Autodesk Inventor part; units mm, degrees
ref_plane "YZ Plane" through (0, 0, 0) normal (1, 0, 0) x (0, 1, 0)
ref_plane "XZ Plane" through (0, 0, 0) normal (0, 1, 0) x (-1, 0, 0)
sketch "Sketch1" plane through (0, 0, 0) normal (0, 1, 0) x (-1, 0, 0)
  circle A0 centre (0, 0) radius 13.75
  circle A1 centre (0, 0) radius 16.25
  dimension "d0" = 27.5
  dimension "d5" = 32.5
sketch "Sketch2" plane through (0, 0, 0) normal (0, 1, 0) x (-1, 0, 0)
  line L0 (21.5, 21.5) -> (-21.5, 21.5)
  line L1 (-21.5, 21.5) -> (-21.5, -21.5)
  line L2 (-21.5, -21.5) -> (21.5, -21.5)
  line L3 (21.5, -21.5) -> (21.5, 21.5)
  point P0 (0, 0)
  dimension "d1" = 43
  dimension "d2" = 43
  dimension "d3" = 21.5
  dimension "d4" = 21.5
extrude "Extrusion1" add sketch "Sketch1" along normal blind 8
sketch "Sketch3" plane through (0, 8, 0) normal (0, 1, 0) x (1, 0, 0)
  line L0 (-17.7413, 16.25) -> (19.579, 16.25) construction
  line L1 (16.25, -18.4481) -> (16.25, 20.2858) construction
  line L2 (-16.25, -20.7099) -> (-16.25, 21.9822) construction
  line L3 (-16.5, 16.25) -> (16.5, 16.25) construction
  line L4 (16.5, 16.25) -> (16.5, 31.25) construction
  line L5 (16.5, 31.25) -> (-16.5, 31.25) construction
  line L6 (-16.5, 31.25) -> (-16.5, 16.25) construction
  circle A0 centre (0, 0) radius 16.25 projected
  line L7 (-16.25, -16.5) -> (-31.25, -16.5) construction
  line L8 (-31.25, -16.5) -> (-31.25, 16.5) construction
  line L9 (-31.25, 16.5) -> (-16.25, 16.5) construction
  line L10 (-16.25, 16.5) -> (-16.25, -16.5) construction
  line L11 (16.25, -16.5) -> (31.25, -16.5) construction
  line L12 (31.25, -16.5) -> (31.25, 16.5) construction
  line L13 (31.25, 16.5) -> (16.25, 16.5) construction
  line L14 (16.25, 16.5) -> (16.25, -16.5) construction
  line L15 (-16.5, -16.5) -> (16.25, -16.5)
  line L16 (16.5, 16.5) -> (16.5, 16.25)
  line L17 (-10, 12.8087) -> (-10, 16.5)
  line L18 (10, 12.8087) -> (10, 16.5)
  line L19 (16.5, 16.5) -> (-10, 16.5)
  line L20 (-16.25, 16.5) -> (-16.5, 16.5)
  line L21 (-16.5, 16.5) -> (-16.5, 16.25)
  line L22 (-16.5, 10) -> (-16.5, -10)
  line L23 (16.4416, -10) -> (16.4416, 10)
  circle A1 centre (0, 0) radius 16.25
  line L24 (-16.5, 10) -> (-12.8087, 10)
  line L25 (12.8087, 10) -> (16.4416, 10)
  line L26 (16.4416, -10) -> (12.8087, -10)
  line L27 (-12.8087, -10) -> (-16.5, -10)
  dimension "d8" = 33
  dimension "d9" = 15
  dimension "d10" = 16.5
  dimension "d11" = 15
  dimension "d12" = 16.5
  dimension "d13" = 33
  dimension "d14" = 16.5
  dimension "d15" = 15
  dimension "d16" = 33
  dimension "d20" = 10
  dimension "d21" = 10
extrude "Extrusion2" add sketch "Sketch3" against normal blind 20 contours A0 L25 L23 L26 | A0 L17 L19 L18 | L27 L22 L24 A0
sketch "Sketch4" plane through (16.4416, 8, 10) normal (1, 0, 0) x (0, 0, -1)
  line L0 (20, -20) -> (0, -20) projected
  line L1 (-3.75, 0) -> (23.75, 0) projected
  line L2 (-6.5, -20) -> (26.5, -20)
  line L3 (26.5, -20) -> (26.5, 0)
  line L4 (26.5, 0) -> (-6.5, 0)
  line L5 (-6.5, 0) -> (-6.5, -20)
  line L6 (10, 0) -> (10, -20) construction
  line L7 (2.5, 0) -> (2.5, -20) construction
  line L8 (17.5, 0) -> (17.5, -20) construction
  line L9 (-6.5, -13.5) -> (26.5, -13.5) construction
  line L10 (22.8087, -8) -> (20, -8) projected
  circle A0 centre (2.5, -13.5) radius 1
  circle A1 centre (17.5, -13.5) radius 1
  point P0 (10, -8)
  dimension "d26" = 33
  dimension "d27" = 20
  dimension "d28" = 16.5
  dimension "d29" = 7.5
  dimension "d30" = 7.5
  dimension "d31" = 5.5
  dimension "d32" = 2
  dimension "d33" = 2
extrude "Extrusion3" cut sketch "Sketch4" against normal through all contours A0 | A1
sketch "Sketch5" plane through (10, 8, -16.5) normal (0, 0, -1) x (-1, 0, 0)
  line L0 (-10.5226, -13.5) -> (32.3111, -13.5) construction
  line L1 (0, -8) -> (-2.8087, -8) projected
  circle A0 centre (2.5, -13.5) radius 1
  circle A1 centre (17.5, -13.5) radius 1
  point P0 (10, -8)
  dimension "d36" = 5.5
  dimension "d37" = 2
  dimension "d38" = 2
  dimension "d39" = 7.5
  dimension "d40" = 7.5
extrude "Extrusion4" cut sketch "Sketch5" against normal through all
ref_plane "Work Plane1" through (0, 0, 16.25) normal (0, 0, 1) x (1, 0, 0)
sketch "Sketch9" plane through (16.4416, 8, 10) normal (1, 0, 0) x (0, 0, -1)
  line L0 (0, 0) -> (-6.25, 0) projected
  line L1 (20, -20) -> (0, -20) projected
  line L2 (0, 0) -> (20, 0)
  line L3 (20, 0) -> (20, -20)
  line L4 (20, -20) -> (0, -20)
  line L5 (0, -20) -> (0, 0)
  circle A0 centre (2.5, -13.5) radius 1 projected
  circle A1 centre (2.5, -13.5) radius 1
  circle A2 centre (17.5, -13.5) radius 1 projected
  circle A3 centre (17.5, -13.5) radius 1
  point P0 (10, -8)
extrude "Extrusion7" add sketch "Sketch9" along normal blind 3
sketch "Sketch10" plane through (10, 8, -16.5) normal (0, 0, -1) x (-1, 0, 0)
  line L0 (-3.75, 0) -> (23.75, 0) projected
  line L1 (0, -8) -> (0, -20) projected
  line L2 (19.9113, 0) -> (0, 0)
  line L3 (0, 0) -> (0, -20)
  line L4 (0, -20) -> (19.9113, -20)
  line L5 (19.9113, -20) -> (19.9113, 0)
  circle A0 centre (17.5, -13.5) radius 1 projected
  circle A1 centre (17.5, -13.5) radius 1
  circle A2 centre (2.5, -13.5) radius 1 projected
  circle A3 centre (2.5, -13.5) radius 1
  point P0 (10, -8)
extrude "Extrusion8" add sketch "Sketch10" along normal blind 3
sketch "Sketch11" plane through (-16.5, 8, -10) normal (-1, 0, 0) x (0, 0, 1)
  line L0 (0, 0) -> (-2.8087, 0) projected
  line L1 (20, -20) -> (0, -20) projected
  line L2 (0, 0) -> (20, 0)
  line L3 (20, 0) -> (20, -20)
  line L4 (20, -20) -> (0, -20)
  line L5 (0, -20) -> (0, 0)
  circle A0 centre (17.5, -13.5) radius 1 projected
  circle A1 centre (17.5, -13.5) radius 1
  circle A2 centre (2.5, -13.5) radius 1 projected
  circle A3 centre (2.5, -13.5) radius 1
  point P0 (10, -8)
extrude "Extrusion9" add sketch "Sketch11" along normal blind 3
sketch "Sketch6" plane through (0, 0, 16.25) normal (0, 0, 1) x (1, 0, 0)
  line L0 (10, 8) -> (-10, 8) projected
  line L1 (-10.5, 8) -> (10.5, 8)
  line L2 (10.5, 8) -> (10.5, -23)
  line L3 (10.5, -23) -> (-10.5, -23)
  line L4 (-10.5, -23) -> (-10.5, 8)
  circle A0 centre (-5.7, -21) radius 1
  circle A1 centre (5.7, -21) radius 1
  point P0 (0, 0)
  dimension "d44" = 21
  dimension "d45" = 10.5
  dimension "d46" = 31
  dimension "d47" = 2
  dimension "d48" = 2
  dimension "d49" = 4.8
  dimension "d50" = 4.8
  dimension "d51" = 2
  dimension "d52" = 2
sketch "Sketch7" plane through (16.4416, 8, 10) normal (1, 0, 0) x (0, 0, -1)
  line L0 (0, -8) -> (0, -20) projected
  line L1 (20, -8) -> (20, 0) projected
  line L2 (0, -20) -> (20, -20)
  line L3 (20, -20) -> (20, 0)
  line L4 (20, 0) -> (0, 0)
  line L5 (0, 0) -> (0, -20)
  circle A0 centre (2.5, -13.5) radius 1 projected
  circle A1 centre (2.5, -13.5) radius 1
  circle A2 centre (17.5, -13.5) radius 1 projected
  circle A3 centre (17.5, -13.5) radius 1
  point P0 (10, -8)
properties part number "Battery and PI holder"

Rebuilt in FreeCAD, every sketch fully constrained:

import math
import FreeCAD as App
import Part
import Sketcher

V = App.Vector


def add_polygon(sketch, points):
    """Adds a closed chain of lines whose ends are joined by coincident constraints."""
    first, n = sketch.GeometryCount, len(points)
    for a, b in zip(points, points[1:] + points[:1]):
        sketch.addGeometry(Part.LineSegment(App.Vector(*a, 0), App.Vector(*b, 0)), False)
    for i in range(n):
        sketch.addConstraint(Sketcher.Constraint("Coincident", first + i, 2, first + (i + 1) % n, 1))

doc = App.newDocument("Part")
body = doc.addObject("PartDesign::Body", "Body")

sketch1 = body.newObject("Sketcher::SketchObject", "Sketch")
sketch1.AttachmentSupport = (doc.getObject("XZ_Plane"), [""])
sketch1.MapMode = "FlatFace"
sketch1.addGeometry(Part.Circle(V(0, 0, 0), V(0, 0, 1), 16), False)
sketch1.addGeometry(Part.Circle(V(0, 0, 0), V(0, 0, 1), 14), False)
sketch1.addConstraint(Sketcher.Constraint("Coincident", 0, 3, -1, 1))
sketch1.addConstraint(Sketcher.Constraint("Coincident", 1, 3, -1, 1))
sketch1.addConstraint(Sketcher.Constraint("Diameter", 0, 32.5))
sketch1.addConstraint(Sketcher.Constraint("Diameter", 1, 27.5))
pad1 = body.newObject("PartDesign::Pad", "Pad")
pad1.Profile = sketch1
pad1.Length = 8
pad1.Reversed = True

sketch2 = body.newObject("Sketcher::SketchObject", "Sketch001")
sketch2.AttachmentSupport = (doc.getObject("XZ_Plane"), [""])
sketch2.MapMode = "FlatFace"
sketch2.AttachmentOffset = App.Placement(V(0, 0, -8), App.Rotation())
sketch2.addGeometry(Part.ArcOfCircle(Part.Circle(V(0, 0, 0), V(0, 0, 1), 16.2), math.radians(-38), math.radians(38)), False)
sketch2.addGeometry(Part.LineSegment(V(12.8, 10, 0), V(16.4, 10, 0)), False)
sketch2.addGeometry(Part.LineSegment(V(16.4, 10, 0), V(16.4, -10, 0)), False)
sketch2.addGeometry(Part.LineSegment(V(16.4, -10, 0), V(12.8, -10, 0)), False)
sketch2.addGeometry(Part.ArcOfCircle(Part.Circle(V(0, 0, 0), V(0, 0, 1), 16.2), math.radians(-128), math.radians(-52)), False)
sketch2.addGeometry(Part.LineSegment(V(10, -12.8, 0), V(10, -16.5, 0)), False)
sketch2.addGeometry(Part.LineSegment(V(10, -16.5, 0), V(-10, -16.5, 0)), False)
sketch2.addGeometry(Part.LineSegment(V(-10, -16.5, 0), V(-10, -12.8, 0)), False)
sketch2.addGeometry(Part.LineSegment(V(-16.5, 10, 0), V(-12.8, 10, 0)), False)
sketch2.addGeometry(Part.ArcOfCircle(Part.Circle(V(0, 0, 0), V(0, 0, 1), 16.2), math.radians(142), math.radians(218)), False)
sketch2.addGeometry(Part.LineSegment(V(-12.8, -10, 0), V(-16.5, -10, 0)), False)
sketch2.addGeometry(Part.LineSegment(V(-16.5, -10, 0), V(-16.5, 10, 0)), False)
sketch2.addConstraint(Sketcher.Constraint("Coincident", 0, 2, 1, 1))
sketch2.addConstraint(Sketcher.Constraint("Coincident", 1, 2, 2, 1))
sketch2.addConstraint(Sketcher.Constraint("Coincident", 2, 2, 3, 1))
sketch2.addConstraint(Sketcher.Constraint("Coincident", 3, 2, 0, 1))
sketch2.addConstraint(Sketcher.Constraint("Coincident", 4, 2, 5, 1))
sketch2.addConstraint(Sketcher.Constraint("Coincident", 5, 2, 6, 1))
sketch2.addConstraint(Sketcher.Constraint("Coincident", 6, 2, 7, 1))
sketch2.addConstraint(Sketcher.Constraint("Coincident", 7, 2, 4, 1))
sketch2.addConstraint(Sketcher.Constraint("Coincident", 8, 2, 9, 1))
sketch2.addConstraint(Sketcher.Constraint("Coincident", 9, 2, 10, 1))
sketch2.addConstraint(Sketcher.Constraint("Coincident", 10, 2, 11, 1))
sketch2.addConstraint(Sketcher.Constraint("Coincident", 11, 2, 8, 1))
sketch2.addConstraint(Sketcher.Constraint("Horizontal", 1))
sketch2.addConstraint(Sketcher.Constraint("Vertical", 2))
sketch2.addConstraint(Sketcher.Constraint("Horizontal", 3))
sketch2.addConstraint(Sketcher.Constraint("Vertical", 5))
sketch2.addConstraint(Sketcher.Constraint("Horizontal", 6))
sketch2.addConstraint(Sketcher.Constraint("Vertical", 7))
sketch2.addConstraint(Sketcher.Constraint("Horizontal", 8))
sketch2.addConstraint(Sketcher.Constraint("Horizontal", 10))
sketch2.addConstraint(Sketcher.Constraint("Vertical", 11))
sketch2.addConstraint(Sketcher.Constraint("Coincident", 0, 3, -1, 1))
sketch2.addConstraint(Sketcher.Constraint("Coincident", 4, 3, -1, 1))
sketch2.addConstraint(Sketcher.Constraint("Coincident", 9, 3, -1, 1))
sketch2.addConstraint(Sketcher.Constraint("Equal", 0, 4))
sketch2.addConstraint(Sketcher.Constraint("Equal", 4, 9))
sketch2.addConstraint(Sketcher.Constraint("Horizontal", 4, 2, 7, 2))
sketch2.addConstraint(Sketcher.Constraint("Horizontal", 1, 2, 8, 2))
sketch2.addConstraint(Sketcher.Constraint("Horizontal", 3, 2, 9, 2))
sketch2.addConstraint(Sketcher.Constraint("Vertical", 0, 2, 3, 2))
sketch2.addConstraint(Sketcher.Constraint("Equal", 6, 2))
sketch2.addConstraint(Sketcher.Constraint("Equal", 10, 5))
sketch2.addConstraint(Sketcher.Constraint("DistanceY", -1, 1, 0, 2, 10.0))
sketch2.addConstraint(Sketcher.Constraint("DistanceY", 5, 2, -1, 1, 16.5))
sketch2.addConstraint(Sketcher.Constraint("Radius", 0, 16.25))
sketch2.addConstraint(Sketcher.Constraint("DistanceX", 1, 1, 1, 2, 3.633))
pad2 = body.newObject("PartDesign::Pad", "Pad001")
pad2.Profile = sketch2
pad2.Length = 20

sketch3 = body.newObject("Sketcher::SketchObject", "Sketch002")
sketch3.AttachmentSupport = (doc.getObject("YZ_Plane"), [""])
sketch3.MapMode = "FlatFace"
sketch3.AttachmentOffset = App.Placement(V(0, 0, 16.4416), App.Rotation())
sketch3.addGeometry(Part.Circle(V(-5.5, 7.5, 0), V(0, 0, 1), 1), False)
sketch3.addGeometry(Part.Circle(V(-5.5, -7.5, 0), V(0, 0, 1), 1), False)
sketch3.addConstraint(Sketcher.Constraint("Equal", 0, 1))
sketch3.addConstraint(Sketcher.Constraint("Symmetric", 0, 3, 1, 3, -1))
sketch3.addConstraint(Sketcher.Constraint("Diameter", 0, 2.0))
sketch3.addConstraint(Sketcher.Constraint("DistanceX", 0, 3, -1, 1, 5.5))
sketch3.addConstraint(Sketcher.Constraint("DistanceY", -1, 1, 0, 3, 7.5))
pocket1 = body.newObject("PartDesign::Pocket", "Pocket")
pocket1.Profile = sketch3
pocket1.Type = "ThroughAll"

sketch4 = body.newObject("Sketcher::SketchObject", "Sketch003")
sketch4.AttachmentSupport = (doc.getObject("XY_Plane"), [""])
sketch4.MapMode = "FlatFace"
sketch4.AttachmentOffset = App.Placement(V(0, 0, -16.5), App.Rotation())
sketch4.addGeometry(Part.Circle(V(7.5, -5.5, 0), V(0, 0, 1), 1), False)
sketch4.addGeometry(Part.Circle(V(-7.5, -5.5, 0), V(0, 0, 1), 1), False)
sketch4.addConstraint(Sketcher.Constraint("Equal", 0, 1))
sketch4.addConstraint(Sketcher.Constraint("Symmetric", 0, 3, 1, 3, -2))
sketch4.addConstraint(Sketcher.Constraint("Diameter", 0, 2.0))
sketch4.addConstraint(Sketcher.Constraint("DistanceX", -1, 1, 0, 3, 7.5))
sketch4.addConstraint(Sketcher.Constraint("DistanceY", 0, 3, -1, 1, 5.5))
pocket2 = body.newObject("PartDesign::Pocket", "Pocket001")
pocket2.Profile = sketch4
pocket2.Type = "ThroughAll"
pocket2.Reversed = True

sketch5 = body.newObject("Sketcher::SketchObject", "Sketch004")
sketch5.AttachmentSupport = (doc.getObject("YZ_Plane"), [""])
sketch5.MapMode = "FlatFace"
sketch5.AttachmentOffset = App.Placement(V(0, 0, 16.4416), App.Rotation())
add_polygon(sketch5, [(-12, 10), (-12, -10), (8, -10), (8, 10)])
sketch5.addGeometry(Part.Circle(V(-5.5, 7.5, 0), V(0, 0, 1), 1), False)
sketch5.addGeometry(Part.Circle(V(-5.5, -7.5, 0), V(0, 0, 1), 1), False)
sketch5.addConstraint(Sketcher.Constraint("Vertical", 0))
sketch5.addConstraint(Sketcher.Constraint("Horizontal", 1))
sketch5.addConstraint(Sketcher.Constraint("Vertical", 2))
sketch5.addConstraint(Sketcher.Constraint("Horizontal", 3))
sketch5.addConstraint(Sketcher.Constraint("Equal", 4, 5))
sketch5.addConstraint(Sketcher.Constraint("Symmetric", 4, 3, 5, 3, -1))
sketch5.addConstraint(Sketcher.Constraint("Equal", 3, 0))
sketch5.addConstraint(Sketcher.Constraint("Diameter", 4, 2.0))
sketch5.addConstraint(Sketcher.Constraint("DistanceX", 1, 1, 1, 2, 20.0))
sketch5.addConstraint(Sketcher.Constraint("DistanceX", 0, 2, -1, 1, 12.0))
sketch5.addConstraint(Sketcher.Constraint("DistanceY", 0, 2, -1, 1, 10.0))
sketch5.addConstraint(Sketcher.Constraint("DistanceY", 5, 3, 4, 3, 15.0))
sketch5.addConstraint(Sketcher.Constraint("DistanceX", 4, 3, -1, 1, 5.5))
pad3 = body.newObject("PartDesign::Pad", "Pad002")
pad3.Profile = sketch5
pad3.Length = 3

sketch6 = body.newObject("Sketcher::SketchObject", "Sketch005")
sketch6.AttachmentSupport = (doc.getObject("XY_Plane"), [""])
sketch6.MapMode = "FlatFace"
sketch6.AttachmentOffset = App.Placement(V(0, 0, -16.5), App.Rotation())
add_polygon(sketch6, [(-9.9, 8), (10, 8), (10, -12), (-9.9, -12)])
sketch6.addGeometry(Part.Circle(V(7.5, -5.5, 0), V(0, 0, 1), 1), False)
sketch6.addGeometry(Part.Circle(V(-7.5, -5.5, 0), V(0, 0, 1), 1), False)
sketch6.addConstraint(Sketcher.Constraint("Horizontal", 0))
sketch6.addConstraint(Sketcher.Constraint("Vertical", 1))
sketch6.addConstraint(Sketcher.Constraint("Horizontal", 2))
sketch6.addConstraint(Sketcher.Constraint("Vertical", 3))
sketch6.addConstraint(Sketcher.Constraint("Equal", 4, 5))
sketch6.addConstraint(Sketcher.Constraint("Symmetric", 4, 3, 5, 3, -2))
sketch6.addConstraint(Sketcher.Constraint("Diameter", 4, 2.0))
sketch6.addConstraint(Sketcher.Constraint("DistanceY", 1, 2, 1, 1, 20.0))
sketch6.addConstraint(Sketcher.Constraint("DistanceX", -1, 1, 0, 2, 10.0))
sketch6.addConstraint(Sketcher.Constraint("DistanceY", -1, 1, 0, 2, 8.0))
sketch6.addConstraint(Sketcher.Constraint("DistanceX", 5, 3, 4, 3, 15.0))
sketch6.addConstraint(Sketcher.Constraint("DistanceY", 4, 3, -1, 1, 5.5))
sketch6.addConstraint(Sketcher.Constraint("DistanceX", 0, 1, 0, 2, 19.9113))
pad4 = body.newObject("PartDesign::Pad", "Pad003")
pad4.Profile = sketch6
pad4.Length = 3
pad4.Reversed = True

sketch7 = body.newObject("Sketcher::SketchObject", "Sketch006")
sketch7.AttachmentSupport = (doc.getObject("YZ_Plane"), [""])
sketch7.MapMode = "FlatFace"
sketch7.AttachmentOffset = App.Placement(V(0, 0, -16.5), App.Rotation())
add_polygon(sketch7, [(-12, -10), (-12, 10), (8, 10), (8, -10)])
sketch7.addGeometry(Part.Circle(V(-5.5, -7.5, 0), V(0, 0, 1), 1), False)
sketch7.addGeometry(Part.Circle(V(-5.5, 7.5, 0), V(0, 0, 1), 1), False)
sketch7.addConstraint(Sketcher.Constraint("Vertical", 0))
sketch7.addConstraint(Sketcher.Constraint("Horizontal", 1))
sketch7.addConstraint(Sketcher.Constraint("Vertical", 2))
sketch7.addConstraint(Sketcher.Constraint("Horizontal", 3))
sketch7.addConstraint(Sketcher.Constraint("Equal", 4, 5))
sketch7.addConstraint(Sketcher.Constraint("Symmetric", 4, 3, 5, 3, -1))
sketch7.addConstraint(Sketcher.Constraint("Equal", 3, 0))
sketch7.addConstraint(Sketcher.Constraint("Diameter", 4, 2.0))
sketch7.addConstraint(Sketcher.Constraint("DistanceX", 1, 1, 1, 2, 20.0))
sketch7.addConstraint(Sketcher.Constraint("DistanceX", 0, 2, -1, 1, 12.0))
sketch7.addConstraint(Sketcher.Constraint("DistanceY", -1, 1, 0, 2, 10.0))
sketch7.addConstraint(Sketcher.Constraint("DistanceY", 4, 3, 5, 3, 15.0))
sketch7.addConstraint(Sketcher.Constraint("DistanceX", 4, 3, -1, 1, 5.5))
pad5 = body.newObject("PartDesign::Pad", "Pad004")
pad5.Profile = sketch7
pad5.Length = 3
pad5.Reversed = True

doc.recompute()
